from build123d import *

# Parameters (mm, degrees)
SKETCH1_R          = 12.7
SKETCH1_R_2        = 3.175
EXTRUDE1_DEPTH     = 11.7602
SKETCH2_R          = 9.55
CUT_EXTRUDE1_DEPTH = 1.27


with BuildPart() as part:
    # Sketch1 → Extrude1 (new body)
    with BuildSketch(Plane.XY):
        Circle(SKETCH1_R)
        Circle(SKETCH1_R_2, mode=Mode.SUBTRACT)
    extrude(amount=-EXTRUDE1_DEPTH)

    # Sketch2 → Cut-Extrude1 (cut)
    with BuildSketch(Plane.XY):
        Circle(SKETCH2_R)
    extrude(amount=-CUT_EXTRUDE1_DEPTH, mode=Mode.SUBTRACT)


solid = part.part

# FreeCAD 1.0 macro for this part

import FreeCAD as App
import Part
import Sketcher
Q = App.Units.Quantity

doc = App.newDocument("Part")
body = doc.addObject("PartDesign::Body", "Body")

# Sketch on XY plane
sketch1 = doc.addObject("Sketcher::SketchObject", "Sketch")
body.addObject(sketch1)
sketch1.AttachmentSupport = (doc.XY_Plane, [""])
sketch1.MapMode = "FlatFace"
sketch1.addGeometry([
    Part.Circle(App.Vector(0, 0, 0), App.Vector(0, 0, 1), 12.7),
    Part.Circle(App.Vector(0, 0, 0), App.Vector(0, 0, 1), 3.175),
], False)
sketch1.addConstraint([
    Sketcher.Constraint("Coincident", 0, 3, -1, 1),
    Sketcher.Constraint("Coincident", 1, 3, -1, 1),
    Sketcher.Constraint("Diameter", 0, Q("1 in")),
    Sketcher.Constraint("Diameter", 1, Q("0.25 in")),
])
pad1 = doc.addObject("PartDesign::Pad", "Pad")
body.addObject(pad1)
pad1.Profile = sketch1
pad1.Length = Q("0.463 in")
pad1.Reversed = True

# Sketch on XY plane
sketch2 = doc.addObject("Sketcher::SketchObject", "Sketch001")
body.addObject(sketch2)
sketch2.AttachmentSupport = (doc.XY_Plane, [""])
sketch2.MapMode = "FlatFace"
sketch2.addGeometry(Part.Circle(App.Vector(0, 0, 0), App.Vector(0, 0, 1), 9.55), False)
sketch2.addConstraint([
    Sketcher.Constraint("Coincident", 0, 3, -1, 1),
    Sketcher.Constraint("Diameter", 0, 19.1),
])
pocket1 = doc.addObject("PartDesign::Pocket", "Pocket")
body.addObject(pocket1)
pocket1.Profile = sketch2
pocket1.Length = Q("0.05 in")

doc.recompute()
